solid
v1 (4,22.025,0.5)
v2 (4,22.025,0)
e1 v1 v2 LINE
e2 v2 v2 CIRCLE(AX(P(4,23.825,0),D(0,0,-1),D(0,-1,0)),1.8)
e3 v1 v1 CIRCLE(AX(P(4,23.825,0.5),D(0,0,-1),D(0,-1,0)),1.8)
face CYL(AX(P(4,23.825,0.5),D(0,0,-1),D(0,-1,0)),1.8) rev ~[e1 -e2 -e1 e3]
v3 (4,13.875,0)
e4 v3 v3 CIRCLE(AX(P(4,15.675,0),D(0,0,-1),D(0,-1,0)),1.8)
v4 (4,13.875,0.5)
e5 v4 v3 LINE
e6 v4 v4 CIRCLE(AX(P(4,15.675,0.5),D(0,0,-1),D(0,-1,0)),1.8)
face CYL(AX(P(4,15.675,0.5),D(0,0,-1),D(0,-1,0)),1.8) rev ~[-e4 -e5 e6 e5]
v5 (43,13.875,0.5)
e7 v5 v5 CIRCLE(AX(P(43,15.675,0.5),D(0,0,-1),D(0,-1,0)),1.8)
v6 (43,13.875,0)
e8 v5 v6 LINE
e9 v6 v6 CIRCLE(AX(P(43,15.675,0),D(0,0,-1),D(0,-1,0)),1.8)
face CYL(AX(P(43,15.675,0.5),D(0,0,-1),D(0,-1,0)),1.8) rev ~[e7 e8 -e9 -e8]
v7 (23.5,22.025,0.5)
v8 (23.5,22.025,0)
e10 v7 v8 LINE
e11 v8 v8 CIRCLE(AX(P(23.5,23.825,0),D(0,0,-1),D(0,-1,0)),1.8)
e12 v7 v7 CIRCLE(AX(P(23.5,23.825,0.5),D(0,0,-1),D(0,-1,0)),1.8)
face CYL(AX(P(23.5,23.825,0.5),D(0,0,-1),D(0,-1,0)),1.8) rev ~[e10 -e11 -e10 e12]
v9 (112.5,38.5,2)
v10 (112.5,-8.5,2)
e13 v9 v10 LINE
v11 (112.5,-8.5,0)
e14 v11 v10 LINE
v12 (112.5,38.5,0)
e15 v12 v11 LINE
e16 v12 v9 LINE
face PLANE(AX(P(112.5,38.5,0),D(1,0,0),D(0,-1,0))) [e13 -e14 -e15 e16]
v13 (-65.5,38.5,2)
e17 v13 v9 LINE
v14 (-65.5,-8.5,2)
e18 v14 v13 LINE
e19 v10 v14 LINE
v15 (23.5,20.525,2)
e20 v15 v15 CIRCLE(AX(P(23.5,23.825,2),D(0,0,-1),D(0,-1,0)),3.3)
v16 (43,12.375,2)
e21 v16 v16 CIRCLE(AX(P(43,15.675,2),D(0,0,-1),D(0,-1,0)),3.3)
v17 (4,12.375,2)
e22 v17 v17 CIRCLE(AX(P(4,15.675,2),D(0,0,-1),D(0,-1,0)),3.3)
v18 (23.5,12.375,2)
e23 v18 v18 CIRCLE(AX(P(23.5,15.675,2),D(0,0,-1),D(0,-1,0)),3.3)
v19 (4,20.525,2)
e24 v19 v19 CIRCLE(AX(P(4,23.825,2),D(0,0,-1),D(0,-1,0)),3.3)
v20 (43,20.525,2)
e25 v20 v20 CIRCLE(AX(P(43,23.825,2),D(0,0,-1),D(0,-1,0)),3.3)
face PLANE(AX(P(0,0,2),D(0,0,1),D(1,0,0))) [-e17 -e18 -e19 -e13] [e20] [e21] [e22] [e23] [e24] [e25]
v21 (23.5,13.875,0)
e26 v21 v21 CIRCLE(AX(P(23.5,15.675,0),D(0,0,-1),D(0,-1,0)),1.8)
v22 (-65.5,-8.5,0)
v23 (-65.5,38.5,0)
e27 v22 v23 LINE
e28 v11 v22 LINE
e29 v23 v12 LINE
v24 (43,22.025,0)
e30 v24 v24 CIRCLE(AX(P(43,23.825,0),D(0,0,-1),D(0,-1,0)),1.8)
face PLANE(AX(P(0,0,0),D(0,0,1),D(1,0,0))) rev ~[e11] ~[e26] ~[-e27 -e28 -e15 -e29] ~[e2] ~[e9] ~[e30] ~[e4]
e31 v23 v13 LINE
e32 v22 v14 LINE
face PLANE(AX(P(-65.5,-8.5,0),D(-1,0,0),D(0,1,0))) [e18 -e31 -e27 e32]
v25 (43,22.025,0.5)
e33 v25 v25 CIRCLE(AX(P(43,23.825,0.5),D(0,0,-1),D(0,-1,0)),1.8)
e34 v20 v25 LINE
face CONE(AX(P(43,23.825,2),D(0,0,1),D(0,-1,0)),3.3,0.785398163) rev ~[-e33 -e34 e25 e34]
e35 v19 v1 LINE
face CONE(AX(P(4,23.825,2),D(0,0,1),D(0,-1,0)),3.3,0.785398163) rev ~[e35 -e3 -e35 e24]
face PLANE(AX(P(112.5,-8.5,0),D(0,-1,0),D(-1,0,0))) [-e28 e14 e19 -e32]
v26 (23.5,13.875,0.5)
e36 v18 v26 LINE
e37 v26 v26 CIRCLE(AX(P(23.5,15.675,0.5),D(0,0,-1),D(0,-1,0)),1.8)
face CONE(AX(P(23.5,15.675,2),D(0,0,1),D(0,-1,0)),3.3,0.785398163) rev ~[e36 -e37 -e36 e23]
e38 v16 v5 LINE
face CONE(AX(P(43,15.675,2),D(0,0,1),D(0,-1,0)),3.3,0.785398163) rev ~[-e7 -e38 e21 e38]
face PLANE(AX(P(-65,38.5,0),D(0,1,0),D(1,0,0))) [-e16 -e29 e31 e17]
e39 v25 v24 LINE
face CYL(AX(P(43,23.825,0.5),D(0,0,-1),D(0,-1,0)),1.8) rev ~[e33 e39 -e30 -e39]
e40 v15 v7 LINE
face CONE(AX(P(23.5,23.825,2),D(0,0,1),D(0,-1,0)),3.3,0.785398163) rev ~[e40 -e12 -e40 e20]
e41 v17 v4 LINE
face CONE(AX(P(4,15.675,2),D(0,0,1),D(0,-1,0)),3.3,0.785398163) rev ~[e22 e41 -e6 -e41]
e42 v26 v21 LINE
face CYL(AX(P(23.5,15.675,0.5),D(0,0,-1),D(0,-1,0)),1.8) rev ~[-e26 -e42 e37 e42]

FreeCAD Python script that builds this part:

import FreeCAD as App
import Part
import Sketcher

doc = App.newDocument("Part")
params = doc.addObject("Spreadsheet::Sheet", "Params")
for row, (alias, value) in enumerate([
    ("sketch1_width", "178 mm"),
    ("sketch1_height", "47 mm"),
    ("pad1_length", "2 mm"),
    ("sketch2_diameter", "3.6 mm"),
    ("hole_diameter", "3.6 mm"),
    ("hole_csink_diameter", "6.6 mm"),
], start=1):
    params.set(f"A{row}", alias)
    params.set(f"B{row}", "=" + value)
    params.setAlias(f"B{row}", alias)

body = doc.addObject("PartDesign::Body", "Body")

sketch1 = body.newObject("Sketcher::SketchObject", "Sketch")
sketch1.AttachmentSupport = (doc.getObject("XY_Plane"), [""])
sketch1.MapMode = "FlatFace"
sketch1.addGeometry(Part.LineSegment(App.Vector(112.5, 38.5, 0), App.Vector(-65.5, 38.5, 0)), False)
sketch1.addGeometry(Part.LineSegment(App.Vector(-65.5, 38.5, 0), App.Vector(-65.5, -8.5, 0)), False)
sketch1.addGeometry(Part.LineSegment(App.Vector(-65.5, -8.5, 0), App.Vector(112.5, -8.5, 0)), False)
sketch1.addGeometry(Part.LineSegment(App.Vector(112.5, -8.5, 0), App.Vector(112.5, 38.5, 0)), False)
sketch1.addConstraint(Sketcher.Constraint("Coincident", 0, 2, 1, 1))
sketch1.addConstraint(Sketcher.Constraint("Coincident", 1, 2, 2, 1))
sketch1.addConstraint(Sketcher.Constraint("Coincident", 2, 2, 3, 1))
sketch1.addConstraint(Sketcher.Constraint("Coincident", 3, 2, 0, 1))
sketch1.addConstraint(Sketcher.Constraint("Horizontal", 0))
sketch1.addConstraint(Sketcher.Constraint("Vertical", 1))
sketch1.addConstraint(Sketcher.Constraint("Horizontal", 2))
sketch1.addConstraint(Sketcher.Constraint("Vertical", 3))
sketch1.addConstraint(Sketcher.Constraint("DistanceX", 0, 2, 0, 1, 178.0))
sketch1.addConstraint(Sketcher.Constraint("DistanceY", 1, 2, 1, 1, 47.0))
sketch1.addConstraint(Sketcher.Constraint("DistanceX", 0, 2, -1, 1, 65.5))
sketch1.addConstraint(Sketcher.Constraint("DistanceY", -1, 1, 0, 2, 38.5))
sketch1.setExpression("Constraints[8]", "Params.sketch1_width")
sketch1.setExpression("Constraints[9]", "Params.sketch1_height")
pad1 = body.newObject("PartDesign::Pad", "Pad")
pad1.Profile = sketch1
pad1.setExpression("Length", "Params.pad1_length")

sketch2 = body.newObject("Sketcher::SketchObject", "Sketch001")
sketch2.AttachmentSupport = (doc.getObject("XY_Plane"), [""])
sketch2.MapMode = "FlatFace"
sketch2.AttachmentOffset = App.Placement(App.Vector(0, 0, 2), App.Rotation())
sketch2.addGeometry(Part.Circle(App.Vector(4, 23.825, 0), App.Vector(0, 0, 1), 1.8), False)
sketch2.addGeometry(Part.Circle(App.Vector(4, 15.675, 0), App.Vector(0, 0, 1), 1.8), False)
sketch2.addGeometry(Part.Circle(App.Vector(23.5, 15.675, 0), App.Vector(0, 0, 1), 1.8), False)
sketch2.addGeometry(Part.Circle(App.Vector(23.5, 23.825, 0), App.Vector(0, 0, 1), 1.8), False)
sketch2.addGeometry(Part.Circle(App.Vector(43, 23.825, 0), App.Vector(0, 0, 1), 1.8), False)
sketch2.addGeometry(Part.Circle(App.Vector(43, 15.675, 0), App.Vector(0, 0, 1), 1.8), False)
sketch2.addConstraint(Sketcher.Constraint("Equal", 0, 1))
sketch2.addConstraint(Sketcher.Constraint("Equal", 1, 2))
sketch2.addConstraint(Sketcher.Constraint("Equal", 2, 3))
sketch2.addConstraint(Sketcher.Constraint("Equal", 3, 4))
sketch2.addConstraint(Sketcher.Constraint("Equal", 4, 5))
sketch2.addConstraint(Sketcher.Constraint("Horizontal", 1, 3, 2, 3))
sketch2.addConstraint(Sketcher.Constraint("Horizontal", 0, 3, 3, 3))
sketch2.addConstraint(Sketcher.Constraint("Horizontal", 3, 3, 4, 3))
sketch2.addConstraint(Sketcher.Constraint("Horizontal", 2, 3, 5, 3))
sketch2.addConstraint(Sketcher.Constraint("Vertical", 0, 3, 1, 3))
sketch2.addConstraint(Sketcher.Constraint("Vertical", 2, 3, 3, 3))
sketch2.addConstraint(Sketcher.Constraint("Vertical", 4, 3, 5, 3))
sketch2.addConstraint(Sketcher.Constraint("Diameter", 0, 3.6))
sketch2.addConstraint(Sketcher.Constraint("DistanceX", -1, 1, 0, 3, 4.0))
sketch2.addConstraint(Sketcher.Constraint("DistanceX", -1, 1, 4, 3, 43.0))
sketch2.addConstraint(Sketcher.Constraint("DistanceX", -1, 1, 2, 3, 23.5))
sketch2.addConstraint(Sketcher.Constraint("DistanceY", 1, 3, 0, 3, 8.15))
sketch2.addConstraint(Sketcher.Constraint("DistanceY", -1, 1, 0, 3, 23.825))
sketch2.setExpression("Constraints[12]", "Params.sketch2_diameter")
doc.recompute()
hole = body.newObject("PartDesign::Hole", "Hole")
hole.Profile = sketch2
hole.ThreadType = "None"
hole.setExpression("Diameter", "Params.hole_diameter")
hole.DepthType = "ThroughAll"
hole.HoleCutType = "Countersink"
hole.setExpression("HoleCutDiameter", "Params.hole_csink_diameter")
hole.HoleCutCountersinkAngle = 90

doc.recompute()
